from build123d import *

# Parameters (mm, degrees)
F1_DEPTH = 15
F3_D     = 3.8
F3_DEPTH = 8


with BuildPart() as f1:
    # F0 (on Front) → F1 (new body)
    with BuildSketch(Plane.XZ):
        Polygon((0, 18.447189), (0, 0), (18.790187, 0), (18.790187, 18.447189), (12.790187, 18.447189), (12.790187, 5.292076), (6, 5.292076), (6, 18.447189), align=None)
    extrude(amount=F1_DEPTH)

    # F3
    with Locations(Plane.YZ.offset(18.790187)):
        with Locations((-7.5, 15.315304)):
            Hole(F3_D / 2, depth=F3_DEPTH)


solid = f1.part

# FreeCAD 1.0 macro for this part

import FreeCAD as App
import Part
import Sketcher
Q = App.Units.Quantity

doc = App.newDocument("Part")
params = doc.addObject("Spreadsheet::Sheet", "Params")
for row, (alias, value) in enumerate([
    ("sketch1_width", "6 mm"),
    ("pad1_length", "15 mm"),
    ("sketch2_diameter", "3.8 mm"),
    ("hole_diameter", "3.8 mm"),
    ("hole_depth", "8 mm"),
], start=1):
    params.set(f"A{row}", alias)
    params.set(f"B{row}", "=" + value)
    params.setAlias(f"B{row}", alias)

body = doc.addObject("PartDesign::Body", "Body")

# Sketch on XZ plane
sketch1 = body.newObject("Sketcher::SketchObject", "Sketch")
sketch1.AttachmentSupport = (doc.getObject("XZ_Plane"), [""])
sketch1.MapMode = "FlatFace"
sketch1.addGeometry([
    Part.LineSegment(App.Vector(0, 18, 0), App.Vector(0, 0, 0)),  # 0
    Part.LineSegment(App.Vector(0, 0, 0), App.Vector(19, 0, 0)),  # 1
    Part.LineSegment(App.Vector(19, 0, 0), App.Vector(19, 18, 0)),  # 2
    Part.LineSegment(App.Vector(19, 18, 0), App.Vector(13, 18, 0)),  # 3
    Part.LineSegment(App.Vector(13, 18, 0), App.Vector(13, 5, 0)),  # 4
    Part.LineSegment(App.Vector(13, 5, 0), App.Vector(6, 5, 0)),  # 5
    Part.LineSegment(App.Vector(6, 5, 0), App.Vector(6, 18, 0)),  # 6
    Part.LineSegment(App.Vector(6, 18, 0), App.Vector(0, 18, 0)),  # 7
], False)
sketch1.addConstraint([
    Sketcher.Constraint("Coincident", 0, 2, 1, 1),
    Sketcher.Constraint("Coincident", 1, 2, 2, 1),
    Sketcher.Constraint("Coincident", 2, 2, 3, 1),
    Sketcher.Constraint("Coincident", 3, 2, 4, 1),
    Sketcher.Constraint("Coincident", 4, 2, 5, 1),
    Sketcher.Constraint("Coincident", 5, 2, 6, 1),
    Sketcher.Constraint("Coincident", 6, 2, 7, 1),
    Sketcher.Constraint("Coincident", 7, 2, 0, 1),
    Sketcher.Constraint("Vertical", 0),
    Sketcher.Constraint("Horizontal", 1),
    Sketcher.Constraint("Vertical", 2),
    Sketcher.Constraint("Horizontal", 3),
    Sketcher.Constraint("Vertical", 4),
    Sketcher.Constraint("Horizontal", 5),
    Sketcher.Constraint("Vertical", 6),
    Sketcher.Constraint("Horizontal", 7),
    Sketcher.Constraint("Coincident", 0, 2, -1, 1),
    Sketcher.Constraint("Horizontal", 3, 2, 6, 2),
    Sketcher.Constraint("Equal", 3, 7),
    Sketcher.Constraint("DistanceX", 3, 2, 3, 1, Q("6 mm")),
    Sketcher.Constraint("DistanceY", 0, 2, 0, 1, Q("18.447189 mm")),
    Sketcher.Constraint("DistanceX", 1, 1, 1, 2, Q("18.790187 mm")),
    Sketcher.Constraint("DistanceY", 4, 2, 4, 1, Q("13.155113 mm")),
])
sketch1.setExpression("Constraints[19]", "Params.sketch1_width")
pad1 = body.newObject("PartDesign::Pad", "Pad")
pad1.Profile = sketch1
pad1.setExpression("Length", "Params.pad1_length")

# Sketch on YZ plane
sketch2 = body.newObject("Sketcher::SketchObject", "Sketch001")
sketch2.AttachmentSupport = (doc.getObject("YZ_Plane"), [""])
sketch2.MapMode = "FlatFace"
sketch2.AttachmentOffset = App.Placement(App.Vector(0, 0, 18.790187), App.Rotation())
sketch2.addGeometry(Part.Circle(App.Vector(-7.5, 15.3, 0), App.Vector(0, 0, 1), 1.9), False)
sketch2.addConstraint([
    Sketcher.Constraint("Diameter", 0, Q("3.8 mm")),
    Sketcher.Constraint("DistanceX", 0, 3, -1, 1, Q("7.5 mm")),
    Sketcher.Constraint("DistanceY", -1, 1, 0, 3, Q("15.315304 mm")),
])
sketch2.setExpression("Constraints[0]", "Params.sketch2_diameter")
doc.recompute()
hole = body.newObject("PartDesign::Hole", "Hole")
hole.Profile = sketch2
hole.ThreadType = "None"
hole.setExpression("Diameter", "Params.hole_diameter")
hole.DepthType = "Dimension"
hole.setExpression("Depth", "Params.hole_depth")
hole.DrillPoint = "Flat"

doc.recompute()
